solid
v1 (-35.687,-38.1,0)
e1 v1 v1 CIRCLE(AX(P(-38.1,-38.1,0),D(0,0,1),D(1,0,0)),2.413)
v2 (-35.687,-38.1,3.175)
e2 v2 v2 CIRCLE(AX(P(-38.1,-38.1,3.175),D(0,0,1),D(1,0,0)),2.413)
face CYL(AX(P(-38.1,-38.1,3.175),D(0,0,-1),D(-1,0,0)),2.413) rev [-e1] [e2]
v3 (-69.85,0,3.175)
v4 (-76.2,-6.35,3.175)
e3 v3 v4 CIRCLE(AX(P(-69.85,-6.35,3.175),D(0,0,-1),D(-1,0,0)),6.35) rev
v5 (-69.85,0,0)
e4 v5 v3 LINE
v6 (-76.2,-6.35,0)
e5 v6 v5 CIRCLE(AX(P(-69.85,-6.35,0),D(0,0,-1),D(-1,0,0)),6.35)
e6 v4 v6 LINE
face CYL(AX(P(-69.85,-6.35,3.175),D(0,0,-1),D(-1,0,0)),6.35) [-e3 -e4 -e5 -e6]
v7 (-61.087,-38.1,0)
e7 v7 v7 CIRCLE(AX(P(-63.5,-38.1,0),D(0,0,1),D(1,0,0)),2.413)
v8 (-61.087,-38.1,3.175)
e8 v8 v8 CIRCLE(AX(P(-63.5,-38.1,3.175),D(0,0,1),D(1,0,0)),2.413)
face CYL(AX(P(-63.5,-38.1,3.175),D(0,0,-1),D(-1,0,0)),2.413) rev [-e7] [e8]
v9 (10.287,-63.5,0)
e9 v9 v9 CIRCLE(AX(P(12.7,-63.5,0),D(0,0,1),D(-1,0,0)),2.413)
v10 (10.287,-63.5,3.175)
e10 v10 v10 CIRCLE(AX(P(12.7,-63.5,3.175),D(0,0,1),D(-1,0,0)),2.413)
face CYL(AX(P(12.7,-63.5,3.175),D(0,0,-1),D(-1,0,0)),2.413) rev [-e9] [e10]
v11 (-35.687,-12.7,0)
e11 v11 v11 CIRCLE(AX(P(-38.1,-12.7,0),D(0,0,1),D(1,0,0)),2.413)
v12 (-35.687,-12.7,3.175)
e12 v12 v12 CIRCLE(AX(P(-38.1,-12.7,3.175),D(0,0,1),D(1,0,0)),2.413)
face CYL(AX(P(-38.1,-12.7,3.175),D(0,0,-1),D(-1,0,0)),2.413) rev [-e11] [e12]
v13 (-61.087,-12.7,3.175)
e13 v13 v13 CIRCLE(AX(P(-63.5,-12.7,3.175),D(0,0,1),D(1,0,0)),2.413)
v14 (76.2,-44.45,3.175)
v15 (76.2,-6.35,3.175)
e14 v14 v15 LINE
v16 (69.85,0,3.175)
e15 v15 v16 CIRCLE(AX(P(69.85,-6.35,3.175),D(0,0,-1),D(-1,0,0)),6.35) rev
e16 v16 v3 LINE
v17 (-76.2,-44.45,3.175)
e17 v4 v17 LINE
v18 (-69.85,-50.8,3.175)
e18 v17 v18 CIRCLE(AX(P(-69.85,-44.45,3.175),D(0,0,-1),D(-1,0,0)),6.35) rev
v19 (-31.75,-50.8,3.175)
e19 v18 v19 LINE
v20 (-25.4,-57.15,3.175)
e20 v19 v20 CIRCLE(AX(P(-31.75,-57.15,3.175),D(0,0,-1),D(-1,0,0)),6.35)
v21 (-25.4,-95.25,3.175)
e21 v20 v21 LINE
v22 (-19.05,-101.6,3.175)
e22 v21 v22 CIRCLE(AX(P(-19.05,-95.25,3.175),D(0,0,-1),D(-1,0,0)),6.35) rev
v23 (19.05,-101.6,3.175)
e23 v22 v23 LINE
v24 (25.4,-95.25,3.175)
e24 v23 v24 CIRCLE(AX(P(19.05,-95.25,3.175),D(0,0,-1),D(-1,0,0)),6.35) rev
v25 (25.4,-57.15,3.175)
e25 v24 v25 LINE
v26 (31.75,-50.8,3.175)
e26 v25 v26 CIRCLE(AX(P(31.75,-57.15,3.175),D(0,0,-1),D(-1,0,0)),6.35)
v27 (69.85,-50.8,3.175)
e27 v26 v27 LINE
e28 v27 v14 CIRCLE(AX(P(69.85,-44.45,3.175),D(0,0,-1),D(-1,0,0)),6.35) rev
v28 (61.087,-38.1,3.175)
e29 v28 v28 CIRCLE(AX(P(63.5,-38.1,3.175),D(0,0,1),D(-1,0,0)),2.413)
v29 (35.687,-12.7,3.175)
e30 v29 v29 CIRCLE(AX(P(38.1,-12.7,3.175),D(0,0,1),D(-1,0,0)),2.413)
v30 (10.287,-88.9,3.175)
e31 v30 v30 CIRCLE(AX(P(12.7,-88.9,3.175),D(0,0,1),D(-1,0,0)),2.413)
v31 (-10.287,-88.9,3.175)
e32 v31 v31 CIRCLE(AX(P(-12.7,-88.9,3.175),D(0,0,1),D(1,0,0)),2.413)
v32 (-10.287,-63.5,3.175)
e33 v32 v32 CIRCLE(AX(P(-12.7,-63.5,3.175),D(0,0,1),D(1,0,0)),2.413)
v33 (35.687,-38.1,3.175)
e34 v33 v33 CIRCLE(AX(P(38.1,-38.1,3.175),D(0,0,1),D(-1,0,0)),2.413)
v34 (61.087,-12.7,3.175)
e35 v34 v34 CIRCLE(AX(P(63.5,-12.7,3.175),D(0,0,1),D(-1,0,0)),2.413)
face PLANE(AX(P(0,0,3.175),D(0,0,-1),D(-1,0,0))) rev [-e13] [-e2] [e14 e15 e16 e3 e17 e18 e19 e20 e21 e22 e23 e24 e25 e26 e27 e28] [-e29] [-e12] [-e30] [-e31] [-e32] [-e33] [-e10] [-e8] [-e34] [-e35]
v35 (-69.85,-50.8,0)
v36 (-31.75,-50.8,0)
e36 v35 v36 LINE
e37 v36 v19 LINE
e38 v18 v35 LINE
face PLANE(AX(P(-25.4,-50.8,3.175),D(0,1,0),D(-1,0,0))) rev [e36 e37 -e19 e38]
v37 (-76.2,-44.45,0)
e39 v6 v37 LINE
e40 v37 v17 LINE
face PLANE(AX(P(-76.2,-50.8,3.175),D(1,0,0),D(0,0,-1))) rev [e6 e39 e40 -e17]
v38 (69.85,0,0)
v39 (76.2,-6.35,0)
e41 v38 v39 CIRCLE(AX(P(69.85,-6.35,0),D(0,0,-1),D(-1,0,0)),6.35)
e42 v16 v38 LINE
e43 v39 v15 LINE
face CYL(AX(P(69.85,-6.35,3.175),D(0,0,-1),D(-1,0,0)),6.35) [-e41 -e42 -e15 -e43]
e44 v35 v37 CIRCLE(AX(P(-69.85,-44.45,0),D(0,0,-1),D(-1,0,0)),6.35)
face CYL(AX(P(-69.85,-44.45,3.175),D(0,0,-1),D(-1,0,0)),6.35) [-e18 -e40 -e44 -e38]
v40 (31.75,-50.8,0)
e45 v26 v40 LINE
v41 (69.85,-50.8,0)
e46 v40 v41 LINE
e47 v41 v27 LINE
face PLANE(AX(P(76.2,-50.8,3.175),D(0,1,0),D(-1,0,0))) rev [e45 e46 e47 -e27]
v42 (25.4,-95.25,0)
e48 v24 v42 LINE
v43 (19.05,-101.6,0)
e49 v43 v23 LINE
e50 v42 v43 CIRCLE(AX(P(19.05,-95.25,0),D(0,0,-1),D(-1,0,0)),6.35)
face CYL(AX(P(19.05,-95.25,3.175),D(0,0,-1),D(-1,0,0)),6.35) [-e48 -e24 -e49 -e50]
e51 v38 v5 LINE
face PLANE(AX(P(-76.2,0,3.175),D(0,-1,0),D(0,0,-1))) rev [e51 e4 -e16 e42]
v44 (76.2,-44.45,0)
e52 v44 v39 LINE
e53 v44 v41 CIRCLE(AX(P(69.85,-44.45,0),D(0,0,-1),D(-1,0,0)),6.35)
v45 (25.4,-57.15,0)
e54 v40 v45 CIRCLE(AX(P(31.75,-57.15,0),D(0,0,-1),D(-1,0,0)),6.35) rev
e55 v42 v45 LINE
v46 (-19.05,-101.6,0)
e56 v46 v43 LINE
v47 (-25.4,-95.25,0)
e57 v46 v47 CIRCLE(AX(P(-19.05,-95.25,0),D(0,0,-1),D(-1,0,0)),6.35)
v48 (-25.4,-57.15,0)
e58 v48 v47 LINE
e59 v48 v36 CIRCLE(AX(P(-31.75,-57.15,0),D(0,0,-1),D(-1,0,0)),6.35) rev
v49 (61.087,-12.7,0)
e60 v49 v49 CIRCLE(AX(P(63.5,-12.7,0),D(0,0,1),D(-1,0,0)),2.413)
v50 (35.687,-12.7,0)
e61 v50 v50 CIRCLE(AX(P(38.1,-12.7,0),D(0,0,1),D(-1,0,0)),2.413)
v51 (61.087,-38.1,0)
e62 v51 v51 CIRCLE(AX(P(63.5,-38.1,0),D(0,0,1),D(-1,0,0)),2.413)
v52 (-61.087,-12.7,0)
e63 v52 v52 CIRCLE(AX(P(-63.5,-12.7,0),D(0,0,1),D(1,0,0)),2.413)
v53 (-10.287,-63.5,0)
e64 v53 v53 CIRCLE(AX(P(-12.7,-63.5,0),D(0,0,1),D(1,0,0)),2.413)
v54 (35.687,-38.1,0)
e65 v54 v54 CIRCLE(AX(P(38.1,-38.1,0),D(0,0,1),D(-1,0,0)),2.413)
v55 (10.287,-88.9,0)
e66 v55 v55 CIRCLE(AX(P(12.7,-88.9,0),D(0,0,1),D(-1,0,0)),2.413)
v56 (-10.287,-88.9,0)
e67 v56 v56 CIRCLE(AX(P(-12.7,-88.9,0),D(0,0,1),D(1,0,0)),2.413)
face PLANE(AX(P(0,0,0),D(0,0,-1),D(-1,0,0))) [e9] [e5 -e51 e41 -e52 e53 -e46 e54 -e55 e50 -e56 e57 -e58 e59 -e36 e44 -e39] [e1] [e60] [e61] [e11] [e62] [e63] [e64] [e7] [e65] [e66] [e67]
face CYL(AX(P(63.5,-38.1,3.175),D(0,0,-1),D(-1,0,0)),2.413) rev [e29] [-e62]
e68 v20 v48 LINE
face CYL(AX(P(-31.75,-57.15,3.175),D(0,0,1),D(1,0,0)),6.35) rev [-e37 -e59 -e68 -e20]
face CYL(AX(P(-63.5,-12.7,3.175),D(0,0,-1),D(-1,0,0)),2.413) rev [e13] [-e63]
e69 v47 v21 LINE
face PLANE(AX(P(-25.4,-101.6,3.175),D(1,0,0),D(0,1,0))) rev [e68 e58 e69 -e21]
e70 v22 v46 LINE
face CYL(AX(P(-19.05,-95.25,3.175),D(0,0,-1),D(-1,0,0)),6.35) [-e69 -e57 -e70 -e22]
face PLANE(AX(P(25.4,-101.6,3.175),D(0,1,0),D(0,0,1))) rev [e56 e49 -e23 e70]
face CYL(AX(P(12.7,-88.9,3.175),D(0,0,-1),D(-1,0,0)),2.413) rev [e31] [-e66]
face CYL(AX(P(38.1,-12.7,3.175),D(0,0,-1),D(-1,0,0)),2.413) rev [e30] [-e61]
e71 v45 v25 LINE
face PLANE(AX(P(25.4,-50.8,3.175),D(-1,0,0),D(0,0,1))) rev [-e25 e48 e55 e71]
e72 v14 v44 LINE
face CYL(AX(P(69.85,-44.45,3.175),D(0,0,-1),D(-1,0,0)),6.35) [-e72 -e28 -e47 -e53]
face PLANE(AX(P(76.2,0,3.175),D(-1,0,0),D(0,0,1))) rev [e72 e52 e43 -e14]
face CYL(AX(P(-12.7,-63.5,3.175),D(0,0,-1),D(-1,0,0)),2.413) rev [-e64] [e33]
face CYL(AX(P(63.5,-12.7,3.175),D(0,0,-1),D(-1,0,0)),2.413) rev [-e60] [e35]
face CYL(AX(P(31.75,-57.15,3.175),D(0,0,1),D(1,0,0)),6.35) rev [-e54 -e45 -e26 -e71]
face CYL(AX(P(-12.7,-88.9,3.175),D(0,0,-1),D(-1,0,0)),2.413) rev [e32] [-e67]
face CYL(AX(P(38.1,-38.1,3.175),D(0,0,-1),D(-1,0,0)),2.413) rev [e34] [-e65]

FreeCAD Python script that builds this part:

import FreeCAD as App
import Part
import Sketcher
from FreeCAD import Vector
Q = App.Units.Quantity


def edges_at(feature, points):
    """Names of the edges that pass closest to the given points."""
    edges = feature.Shape.Edges
    near = lambda p: min(range(len(edges)), key=lambda i: edges[i].distToShape(Part.Vertex(*p))[0])
    return sorted({f"Edge{near(p) + 1}" for p in points})


def add_polygon(sketch, points):
    """Adds a closed chain of lines whose ends are joined by coincident constraints."""
    first, n = sketch.GeometryCount, len(points)
    for a, b in zip(points, points[1:] + points[:1]):
        sketch.addGeometry(Part.LineSegment(App.Vector(*a, 0), App.Vector(*b, 0)), False)
    for i in range(n):
        sketch.addConstraint(Sketcher.Constraint("Coincident", first + i, 2, first + (i + 1) % n, 1))

doc = App.newDocument("Part")
body = doc.addObject("PartDesign::Body", "Body")

# Sketch on XY plane
sketch1 = body.newObject("Sketcher::SketchObject", "Sketch")
sketch1.AttachmentSupport = (doc.getObject("XY_Plane"), [""])
sketch1.MapMode = "FlatFace"
add_polygon(sketch1, [(76.2, 0), (-76.2, 0), (-76.2, -50.8), (-25.4, -50.8), (-25.4, -101.6), (25.4, -101.6), (25.4, -50.8), (76.2, -50.8)])  # lines 0-7
sketch1.addGeometry(Part.Circle(Vector(12.7, -88.9, 0), Vector(0, 0, 1), 2.4), False)  # 8
sketch1.addGeometry(Part.Circle(Vector(12.7, -63.5, 0), Vector(0, 0, 1), 2.4), False)  # 9
sketch1.addGeometry(Part.Circle(Vector(-12.7, -88.9, 0), Vector(0, 0, 1), 2.4), False)  # 10
sketch1.addGeometry(Part.Circle(Vector(-12.7, -63.5, 0), Vector(0, 0, 1), 2.4), False)  # 11
sketch1.addGeometry(Part.Circle(Vector(63.5, -38.1, 0), Vector(0, 0, 1), 2.4), False)  # 12
sketch1.addGeometry(Part.Circle(Vector(38.1, -38.1, 0), Vector(0, 0, 1), 2.4), False)  # 13
sketch1.addGeometry(Part.Circle(Vector(63.5, -12.7, 0), Vector(0, 0, 1), 2.4), False)  # 14
sketch1.addGeometry(Part.Circle(Vector(38.1, -12.7, 0), Vector(0, 0, 1), 2.4), False)  # 15
sketch1.addGeometry(Part.Circle(Vector(-38.1, -38.1, 0), Vector(0, 0, 1), 2.4), False)  # 16
sketch1.addGeometry(Part.Circle(Vector(-63.5, -38.1, 0), Vector(0, 0, 1), 2.4), False)  # 17
sketch1.addGeometry(Part.Circle(Vector(-38.1, -12.7, 0), Vector(0, 0, 1), 2.4), False)  # 18
sketch1.addGeometry(Part.Circle(Vector(-63.5, -12.7, 0), Vector(0, 0, 1), 2.4), False)  # 19
sketch1.addConstraint([
    Sketcher.Constraint("Horizontal", 0),
    Sketcher.Constraint("Vertical", 1),
    Sketcher.Constraint("Horizontal", 2),
    Sketcher.Constraint("Vertical", 3),
    Sketcher.Constraint("Horizontal", 4),
    Sketcher.Constraint("Vertical", 5),
    Sketcher.Constraint("Horizontal", 6),
    Sketcher.Constraint("Vertical", 7),
    Sketcher.Constraint("Equal", 8, 9),
    Sketcher.Constraint("Equal", 9, 10),
    Sketcher.Constraint("Equal", 10, 11),
    Sketcher.Constraint("Equal", 11, 12),
    Sketcher.Constraint("Equal", 12, 13),
    Sketcher.Constraint("Equal", 13, 14),
    Sketcher.Constraint("Equal", 14, 15),
    Sketcher.Constraint("Equal", 15, 16),
    Sketcher.Constraint("Equal", 16, 17),
    Sketcher.Constraint("Equal", 17, 18),
    Sketcher.Constraint("Equal", 18, 19),
    Sketcher.Constraint("Symmetric", 0, 2, 7, 2, -1, 1),
    Sketcher.Constraint("Symmetric", 8, 3, 10, 3, -2),
    Sketcher.Constraint("Symmetric", 9, 3, 11, 3, -2),
    Sketcher.Constraint("Symmetric", 13, 3, 16, 3, -2),
    Sketcher.Constraint("Symmetric", 12, 3, 17, 3, -2),
    Sketcher.Constraint("Symmetric", 15, 3, 18, 3, -2),
    Sketcher.Constraint("Symmetric", 14, 3, 19, 3, -2),
    Sketcher.Constraint("Symmetric", 2, 2, 5, 2, -2),
    Sketcher.Constraint("Horizontal", 12, 3, 13, 3),
    Sketcher.Constraint("Horizontal", 14, 3, 15, 3),
    Sketcher.Constraint("Vertical", 8, 3, 9, 3),
    Sketcher.Constraint("Vertical", 12, 3, 14, 3),
    Sketcher.Constraint("Vertical", 13, 3, 15, 3),
    Sketcher.Constraint("Equal", 2, 4),
    Sketcher.Constraint("Equal", 6, 1),
    Sketcher.Constraint("Equal", 1, 3),
    Sketcher.Constraint("Diameter", 8, Q("0.19 in")),
    Sketcher.Constraint("DistanceX", 0, 2, 0, 1, Q("6 in")),
    Sketcher.Constraint("DistanceY", 8, 3, 9, 3, Q("1 in")),
    Sketcher.Constraint("DistanceX", 10, 3, 8, 3, Q("1 in")),
    Sketcher.Constraint("DistanceX", 9, 3, 12, 3, Q("2 in")),
    Sketcher.Constraint("DistanceY", 9, 3, 12, 3, Q("1 in")),
    Sketcher.Constraint("DistanceX", 13, 3, 12, 3, Q("1 in")),
    Sketcher.Constraint("DistanceY", 12, 3, 14, 3, Q("1 in")),
    Sketcher.Constraint("DistanceY", 8, 3, -1, 1, Q("3.5 in")),
])
pad1 = body.newObject("PartDesign::Pad", "Pad")
pad1.Profile = sketch1
pad1.Length = Q("0.125 in")
doc.recompute()

fillet = body.newObject("PartDesign::Fillet", "Fillet")
fillet.Base = (pad1, edges_at(pad1, [
    (25.4, -101.6, 1.587),
    (-25.4, -101.6, 1.587),
    (-25.4, -50.8, 1.587),
    (-76.2, -50.8, 1.587),
    (-76.2, 0, 1.587),
    (76.2, 0, 1.587),
    (76.2, -50.8, 1.587),
    (25.4, -50.8, 1.587),
]))
fillet.Radius = Q("0.25 in")

doc.recompute()
